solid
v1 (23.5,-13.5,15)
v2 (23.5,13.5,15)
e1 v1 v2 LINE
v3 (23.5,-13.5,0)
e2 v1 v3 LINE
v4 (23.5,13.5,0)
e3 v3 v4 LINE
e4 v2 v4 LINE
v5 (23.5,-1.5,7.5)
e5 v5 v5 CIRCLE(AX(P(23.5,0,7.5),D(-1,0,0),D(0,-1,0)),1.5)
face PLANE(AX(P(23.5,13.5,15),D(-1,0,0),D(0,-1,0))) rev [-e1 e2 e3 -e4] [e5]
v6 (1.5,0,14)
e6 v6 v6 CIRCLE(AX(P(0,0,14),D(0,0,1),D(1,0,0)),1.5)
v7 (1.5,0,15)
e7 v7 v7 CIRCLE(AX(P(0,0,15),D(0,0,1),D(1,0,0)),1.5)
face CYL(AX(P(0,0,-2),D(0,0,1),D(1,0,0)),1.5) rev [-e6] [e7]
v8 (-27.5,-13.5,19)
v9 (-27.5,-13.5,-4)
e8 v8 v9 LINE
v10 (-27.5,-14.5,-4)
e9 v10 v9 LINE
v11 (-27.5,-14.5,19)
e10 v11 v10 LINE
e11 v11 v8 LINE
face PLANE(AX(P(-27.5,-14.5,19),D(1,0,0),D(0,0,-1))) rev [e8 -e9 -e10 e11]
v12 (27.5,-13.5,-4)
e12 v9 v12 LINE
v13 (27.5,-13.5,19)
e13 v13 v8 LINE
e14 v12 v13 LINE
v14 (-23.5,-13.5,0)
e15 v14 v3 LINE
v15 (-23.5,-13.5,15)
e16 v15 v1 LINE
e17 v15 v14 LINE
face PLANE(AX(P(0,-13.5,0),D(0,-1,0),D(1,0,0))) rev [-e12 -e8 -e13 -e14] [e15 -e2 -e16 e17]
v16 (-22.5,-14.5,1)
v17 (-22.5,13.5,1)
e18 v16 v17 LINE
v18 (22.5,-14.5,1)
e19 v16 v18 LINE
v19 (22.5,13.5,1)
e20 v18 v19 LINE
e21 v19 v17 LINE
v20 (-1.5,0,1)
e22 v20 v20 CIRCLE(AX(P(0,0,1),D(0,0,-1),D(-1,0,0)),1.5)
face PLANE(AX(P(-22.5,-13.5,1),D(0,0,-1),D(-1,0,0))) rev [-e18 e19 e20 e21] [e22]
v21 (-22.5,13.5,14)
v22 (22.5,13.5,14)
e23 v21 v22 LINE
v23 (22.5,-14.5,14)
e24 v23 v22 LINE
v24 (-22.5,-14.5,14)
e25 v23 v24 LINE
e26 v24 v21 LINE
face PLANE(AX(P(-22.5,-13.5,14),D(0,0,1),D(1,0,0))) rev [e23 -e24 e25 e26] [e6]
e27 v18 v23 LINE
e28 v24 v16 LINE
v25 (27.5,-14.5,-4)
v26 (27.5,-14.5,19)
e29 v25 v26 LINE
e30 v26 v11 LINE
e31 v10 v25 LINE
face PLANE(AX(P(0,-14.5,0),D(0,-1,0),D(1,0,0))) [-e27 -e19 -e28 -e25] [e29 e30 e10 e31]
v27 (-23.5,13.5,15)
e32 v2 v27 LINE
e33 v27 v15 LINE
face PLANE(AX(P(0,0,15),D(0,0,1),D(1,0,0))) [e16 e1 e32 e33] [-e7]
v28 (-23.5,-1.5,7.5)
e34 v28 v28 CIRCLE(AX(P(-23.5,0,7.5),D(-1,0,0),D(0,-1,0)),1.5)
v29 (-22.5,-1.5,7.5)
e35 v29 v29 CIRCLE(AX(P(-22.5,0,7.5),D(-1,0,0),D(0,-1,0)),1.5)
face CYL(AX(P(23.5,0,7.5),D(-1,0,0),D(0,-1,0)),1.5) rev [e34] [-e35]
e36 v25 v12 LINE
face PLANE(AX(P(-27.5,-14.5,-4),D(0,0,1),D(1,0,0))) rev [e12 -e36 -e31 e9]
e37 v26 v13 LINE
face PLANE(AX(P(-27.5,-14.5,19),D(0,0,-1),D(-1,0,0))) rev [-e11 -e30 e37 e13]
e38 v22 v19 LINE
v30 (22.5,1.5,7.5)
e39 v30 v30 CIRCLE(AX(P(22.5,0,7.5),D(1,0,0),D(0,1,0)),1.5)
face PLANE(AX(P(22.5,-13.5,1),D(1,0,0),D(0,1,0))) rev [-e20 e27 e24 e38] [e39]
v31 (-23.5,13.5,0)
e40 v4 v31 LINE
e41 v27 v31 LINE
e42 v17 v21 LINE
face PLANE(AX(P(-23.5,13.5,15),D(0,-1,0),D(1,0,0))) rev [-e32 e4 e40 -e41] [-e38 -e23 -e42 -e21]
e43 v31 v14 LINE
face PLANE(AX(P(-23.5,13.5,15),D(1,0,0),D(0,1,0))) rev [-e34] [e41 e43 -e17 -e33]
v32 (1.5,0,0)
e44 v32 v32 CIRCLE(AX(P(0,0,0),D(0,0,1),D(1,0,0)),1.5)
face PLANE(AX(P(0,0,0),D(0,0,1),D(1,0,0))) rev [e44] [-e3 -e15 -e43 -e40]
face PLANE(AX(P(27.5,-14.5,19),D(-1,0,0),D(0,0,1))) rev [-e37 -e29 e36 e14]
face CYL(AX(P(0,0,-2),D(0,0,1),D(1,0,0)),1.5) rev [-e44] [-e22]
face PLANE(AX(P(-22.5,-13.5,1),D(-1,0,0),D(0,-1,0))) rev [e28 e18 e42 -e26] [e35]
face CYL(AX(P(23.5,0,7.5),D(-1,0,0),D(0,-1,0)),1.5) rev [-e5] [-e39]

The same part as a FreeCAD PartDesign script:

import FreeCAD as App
import Part
import Sketcher
Q = App.Units.Quantity

doc = App.newDocument("Part")
params = doc.addObject("Spreadsheet::Sheet", "Params")
for row, (alias, value) in enumerate([
    ("sketch1_width", "47 mm"),
    ("sketch1_height", "27 mm"),
    ("pad1_length", "15 mm"),
    ("sketch2_width", "45 mm"),
    ("sketch2_height", "13 mm"),
    ("pocket1_length", "27 mm"),
    ("sketch3_width", "55 mm"),
    ("sketch3_width2", "45 mm"),
    ("sketch3_height", "23 mm"),
    ("sketch3_height2", "13 mm"),
    ("pad2_length", "1 mm"),
    ("sketch4_diameter", "3 mm"),
    ("pocket2_length", "17 mm"),
    ("sketch5_diameter", "3 mm"),
    ("pocket3_length", "47 mm"),
], start=1):
    params.set(f"A{row}", alias)
    params.set(f"B{row}", "=" + value)
    params.setAlias(f"B{row}", alias)

body = doc.addObject("PartDesign::Body", "Body")

sketch1 = doc.addObject("Sketcher::SketchObject", "Sketch")
body.addObject(sketch1)
sketch1.AttachmentSupport = (doc.XY_Plane, [""])
sketch1.MapMode = "FlatFace"
sketch1.addGeometry(Part.LineSegment(App.Vector(-24, 14, 0), App.Vector(-24, -14, 0)), False)
sketch1.addGeometry(Part.LineSegment(App.Vector(-24, -14, 0), App.Vector(24, -14, 0)), False)
sketch1.addGeometry(Part.LineSegment(App.Vector(24, -14, 0), App.Vector(24, 14, 0)), False)
sketch1.addGeometry(Part.LineSegment(App.Vector(24, 14, 0), App.Vector(-24, 14, 0)), False)
sketch1.addConstraint(Sketcher.Constraint("Coincident", 0, 2, 1, 1))
sketch1.addConstraint(Sketcher.Constraint("Coincident", 1, 2, 2, 1))
sketch1.addConstraint(Sketcher.Constraint("Coincident", 2, 2, 3, 1))
sketch1.addConstraint(Sketcher.Constraint("Coincident", 3, 2, 0, 1))
sketch1.addConstraint(Sketcher.Constraint("Vertical", 0))
sketch1.addConstraint(Sketcher.Constraint("Horizontal", 1))
sketch1.addConstraint(Sketcher.Constraint("Vertical", 2))
sketch1.addConstraint(Sketcher.Constraint("Horizontal", 3))
sketch1.addConstraint(Sketcher.Constraint("Symmetric", 0, 2, 2, 2, -1, 1))
sketch1.addConstraint(Sketcher.Constraint("DistanceX", 1, 1, 1, 2, Q("47 mm")))
sketch1.addConstraint(Sketcher.Constraint("DistanceY", 0, 2, 0, 1, Q("27 mm")))
sketch1.setExpression("Constraints[9]", "Params.sketch1_width")
sketch1.setExpression("Constraints[10]", "Params.sketch1_height")
pad1 = doc.addObject("PartDesign::Pad", "Pad")
body.addObject(pad1)
pad1.Profile = sketch1
pad1.setExpression("Length", "Params.pad1_length")

sketch2 = doc.addObject("Sketcher::SketchObject", "Sketch001")
body.addObject(sketch2)
sketch2.AttachmentSupport = (doc.XZ_Plane, [""])
sketch2.MapMode = "FlatFace"
sketch2.AttachmentOffset = App.Placement(App.Vector(0, 0, -13.5), App.Rotation())
sketch2.addGeometry(Part.LineSegment(App.Vector(-22, 1, 0), App.Vector(-22, 14, 0)), False)
sketch2.addGeometry(Part.LineSegment(App.Vector(-22, 14, 0), App.Vector(22, 14, 0)), False)
sketch2.addGeometry(Part.LineSegment(App.Vector(22, 14, 0), App.Vector(22, 1, 0)), False)
sketch2.addGeometry(Part.LineSegment(App.Vector(22, 1, 0), App.Vector(-22, 1, 0)), False)
sketch2.addConstraint(Sketcher.Constraint("Coincident", 0, 2, 1, 1))
sketch2.addConstraint(Sketcher.Constraint("Coincident", 1, 2, 2, 1))
sketch2.addConstraint(Sketcher.Constraint("Coincident", 2, 2, 3, 1))
sketch2.addConstraint(Sketcher.Constraint("Coincident", 3, 2, 0, 1))
sketch2.addConstraint(Sketcher.Constraint("Vertical", 0))
sketch2.addConstraint(Sketcher.Constraint("Horizontal", 1))
sketch2.addConstraint(Sketcher.Constraint("Vertical", 2))
sketch2.addConstraint(Sketcher.Constraint("Horizontal", 3))
sketch2.addConstraint(Sketcher.Constraint("DistanceX", 1, 1, 1, 2, Q("45 mm")))
sketch2.addConstraint(Sketcher.Constraint("DistanceY", 0, 1, 0, 2, Q("13 mm")))
sketch2.addConstraint(Sketcher.Constraint("DistanceY", -1, 1, 0, 2, Q("14 mm")))
sketch2.addConstraint(Sketcher.Constraint("DistanceX", 0, 2, -1, 1, Q("22.5 mm")))
sketch2.setExpression("Constraints[8]", "Params.sketch2_width")
sketch2.setExpression("Constraints[9]", "Params.sketch2_height")
pocket1 = doc.addObject("PartDesign::Pocket", "Pocket")
body.addObject(pocket1)
pocket1.Profile = sketch2
pocket1.setExpression("Length", "Params.pocket1_length")
pocket1.Reversed = True

sketch3 = doc.addObject("Sketcher::SketchObject", "Sketch002")
body.addObject(sketch3)
sketch3.AttachmentSupport = (doc.XZ_Plane, [""])
sketch3.MapMode = "FlatFace"
sketch3.AttachmentOffset = App.Placement(App.Vector(0, 0, 13.5), App.Rotation())
sketch3.addGeometry(Part.LineSegment(App.Vector(-28, 19, 0), App.Vector(-28, -4, 0)), False)
sketch3.addGeometry(Part.LineSegment(App.Vector(-28, -4, 0), App.Vector(28, -4, 0)), False)
sketch3.addGeometry(Part.LineSegment(App.Vector(28, -4, 0), App.Vector(28, 19, 0)), False)
sketch3.addGeometry(Part.LineSegment(App.Vector(28, 19, 0), App.Vector(-28, 19, 0)), False)
sketch3.addGeometry(Part.LineSegment(App.Vector(22, 1, 0), App.Vector(-22, 1, 0)), False)
sketch3.addGeometry(Part.LineSegment(App.Vector(-22, 1, 0), App.Vector(-22, 14, 0)), False)
sketch3.addGeometry(Part.LineSegment(App.Vector(-22, 14, 0), App.Vector(22, 14, 0)), False)
sketch3.addGeometry(Part.LineSegment(App.Vector(22, 14, 0), App.Vector(22, 1, 0)), False)
sketch3.addConstraint(Sketcher.Constraint("Coincident", 0, 2, 1, 1))
sketch3.addConstraint(Sketcher.Constraint("Coincident", 1, 2, 2, 1))
sketch3.addConstraint(Sketcher.Constraint("Coincident", 2, 2, 3, 1))
sketch3.addConstraint(Sketcher.Constraint("Coincident", 3, 2, 0, 1))
sketch3.addConstraint(Sketcher.Constraint("Coincident", 4, 2, 5, 1))
sketch3.addConstraint(Sketcher.Constraint("Coincident", 5, 2, 6, 1))
sketch3.addConstraint(Sketcher.Constraint("Coincident", 6, 2, 7, 1))
sketch3.addConstraint(Sketcher.Constraint("Coincident", 7, 2, 4, 1))
sketch3.addConstraint(Sketcher.Constraint("Vertical", 0))
sketch3.addConstraint(Sketcher.Constraint("Horizontal", 1))
sketch3.addConstraint(Sketcher.Constraint("Vertical", 2))
sketch3.addConstraint(Sketcher.Constraint("Horizontal", 3))
sketch3.addConstraint(Sketcher.Constraint("Horizontal", 4))
sketch3.addConstraint(Sketcher.Constraint("Vertical", 5))
sketch3.addConstraint(Sketcher.Constraint("Horizontal", 6))
sketch3.addConstraint(Sketcher.Constraint("Vertical", 7))
sketch3.addConstraint(Sketcher.Constraint("DistanceX", 1, 1, 1, 2, Q("55 mm")))
sketch3.addConstraint(Sketcher.Constraint("DistanceX", 4, 2, 4, 1, Q("45 mm")))
sketch3.addConstraint(Sketcher.Constraint("DistanceY", 0, 2, 0, 1, Q("23 mm")))
sketch3.addConstraint(Sketcher.Constraint("DistanceY", 5, 1, 5, 2, Q("13 mm")))
sketch3.addConstraint(Sketcher.Constraint("DistanceY", 0, 2, -1, 1, Q("4 mm")))
sketch3.addConstraint(Sketcher.Constraint("DistanceY", -1, 1, 4, 2, Q("1 mm")))
sketch3.addConstraint(Sketcher.Constraint("DistanceX", 0, 2, 4, 2, Q("5 mm")))
sketch3.addConstraint(Sketcher.Constraint("DistanceX", 0, 2, -1, 1, Q("27.5 mm")))
sketch3.setExpression("Constraints[16]", "Params.sketch3_width")
sketch3.setExpression("Constraints[17]", "Params.sketch3_width2")
sketch3.setExpression("Constraints[18]", "Params.sketch3_height")
sketch3.setExpression("Constraints[19]", "Params.sketch3_height2")
pad2 = doc.addObject("PartDesign::Pad", "Pad001")
body.addObject(pad2)
pad2.Profile = sketch3
pad2.setExpression("Length", "Params.pad2_length")

sketch4 = doc.addObject("Sketcher::SketchObject", "Sketch003")
body.addObject(sketch4)
sketch4.AttachmentSupport = (doc.XY_Plane, [""])
sketch4.MapMode = "FlatFace"
sketch4.AttachmentOffset = App.Placement(App.Vector(0, 0, 15), App.Rotation())
sketch4.addGeometry(Part.Circle(App.Vector(0, 0, 0), App.Vector(0, 0, 1), 1.5), False)
sketch4.addConstraint(Sketcher.Constraint("Coincident", 0, 3, -1, 1))
sketch4.addConstraint(Sketcher.Constraint("Diameter", 0, Q("3 mm")))
sketch4.setExpression("Constraints[1]", "Params.sketch4_diameter")
pocket2 = doc.addObject("PartDesign::Pocket", "Pocket001")
body.addObject(pocket2)
pocket2.Profile = sketch4
pocket2.setExpression("Length", "Params.pocket2_length")

sketch5 = doc.addObject("Sketcher::SketchObject", "Sketch004")
body.addObject(sketch5)
sketch5.AttachmentSupport = (doc.YZ_Plane, [""])
sketch5.MapMode = "FlatFace"
sketch5.AttachmentOffset = App.Placement(App.Vector(0, 0, -23.5), App.Rotation())
sketch5.addGeometry(Part.Circle(App.Vector(0, 7.5, 0), App.Vector(0, 0, 1), 1.5), False)
sketch5.addConstraint(Sketcher.Constraint("PointOnObject", 0, 3, -2))
sketch5.addConstraint(Sketcher.Constraint("Diameter", 0, Q("3 mm")))
sketch5.addConstraint(Sketcher.Constraint("DistanceY", -1, 1, 0, 3, Q("7.5 mm")))
sketch5.setExpression("Constraints[1]", "Params.sketch5_diameter")
pocket3 = doc.addObject("PartDesign::Pocket", "Pocket002")
body.addObject(pocket3)
pocket3.Profile = sketch5
pocket3.setExpression("Length", "Params.pocket3_length")
pocket3.Reversed = True

doc.recompute()
